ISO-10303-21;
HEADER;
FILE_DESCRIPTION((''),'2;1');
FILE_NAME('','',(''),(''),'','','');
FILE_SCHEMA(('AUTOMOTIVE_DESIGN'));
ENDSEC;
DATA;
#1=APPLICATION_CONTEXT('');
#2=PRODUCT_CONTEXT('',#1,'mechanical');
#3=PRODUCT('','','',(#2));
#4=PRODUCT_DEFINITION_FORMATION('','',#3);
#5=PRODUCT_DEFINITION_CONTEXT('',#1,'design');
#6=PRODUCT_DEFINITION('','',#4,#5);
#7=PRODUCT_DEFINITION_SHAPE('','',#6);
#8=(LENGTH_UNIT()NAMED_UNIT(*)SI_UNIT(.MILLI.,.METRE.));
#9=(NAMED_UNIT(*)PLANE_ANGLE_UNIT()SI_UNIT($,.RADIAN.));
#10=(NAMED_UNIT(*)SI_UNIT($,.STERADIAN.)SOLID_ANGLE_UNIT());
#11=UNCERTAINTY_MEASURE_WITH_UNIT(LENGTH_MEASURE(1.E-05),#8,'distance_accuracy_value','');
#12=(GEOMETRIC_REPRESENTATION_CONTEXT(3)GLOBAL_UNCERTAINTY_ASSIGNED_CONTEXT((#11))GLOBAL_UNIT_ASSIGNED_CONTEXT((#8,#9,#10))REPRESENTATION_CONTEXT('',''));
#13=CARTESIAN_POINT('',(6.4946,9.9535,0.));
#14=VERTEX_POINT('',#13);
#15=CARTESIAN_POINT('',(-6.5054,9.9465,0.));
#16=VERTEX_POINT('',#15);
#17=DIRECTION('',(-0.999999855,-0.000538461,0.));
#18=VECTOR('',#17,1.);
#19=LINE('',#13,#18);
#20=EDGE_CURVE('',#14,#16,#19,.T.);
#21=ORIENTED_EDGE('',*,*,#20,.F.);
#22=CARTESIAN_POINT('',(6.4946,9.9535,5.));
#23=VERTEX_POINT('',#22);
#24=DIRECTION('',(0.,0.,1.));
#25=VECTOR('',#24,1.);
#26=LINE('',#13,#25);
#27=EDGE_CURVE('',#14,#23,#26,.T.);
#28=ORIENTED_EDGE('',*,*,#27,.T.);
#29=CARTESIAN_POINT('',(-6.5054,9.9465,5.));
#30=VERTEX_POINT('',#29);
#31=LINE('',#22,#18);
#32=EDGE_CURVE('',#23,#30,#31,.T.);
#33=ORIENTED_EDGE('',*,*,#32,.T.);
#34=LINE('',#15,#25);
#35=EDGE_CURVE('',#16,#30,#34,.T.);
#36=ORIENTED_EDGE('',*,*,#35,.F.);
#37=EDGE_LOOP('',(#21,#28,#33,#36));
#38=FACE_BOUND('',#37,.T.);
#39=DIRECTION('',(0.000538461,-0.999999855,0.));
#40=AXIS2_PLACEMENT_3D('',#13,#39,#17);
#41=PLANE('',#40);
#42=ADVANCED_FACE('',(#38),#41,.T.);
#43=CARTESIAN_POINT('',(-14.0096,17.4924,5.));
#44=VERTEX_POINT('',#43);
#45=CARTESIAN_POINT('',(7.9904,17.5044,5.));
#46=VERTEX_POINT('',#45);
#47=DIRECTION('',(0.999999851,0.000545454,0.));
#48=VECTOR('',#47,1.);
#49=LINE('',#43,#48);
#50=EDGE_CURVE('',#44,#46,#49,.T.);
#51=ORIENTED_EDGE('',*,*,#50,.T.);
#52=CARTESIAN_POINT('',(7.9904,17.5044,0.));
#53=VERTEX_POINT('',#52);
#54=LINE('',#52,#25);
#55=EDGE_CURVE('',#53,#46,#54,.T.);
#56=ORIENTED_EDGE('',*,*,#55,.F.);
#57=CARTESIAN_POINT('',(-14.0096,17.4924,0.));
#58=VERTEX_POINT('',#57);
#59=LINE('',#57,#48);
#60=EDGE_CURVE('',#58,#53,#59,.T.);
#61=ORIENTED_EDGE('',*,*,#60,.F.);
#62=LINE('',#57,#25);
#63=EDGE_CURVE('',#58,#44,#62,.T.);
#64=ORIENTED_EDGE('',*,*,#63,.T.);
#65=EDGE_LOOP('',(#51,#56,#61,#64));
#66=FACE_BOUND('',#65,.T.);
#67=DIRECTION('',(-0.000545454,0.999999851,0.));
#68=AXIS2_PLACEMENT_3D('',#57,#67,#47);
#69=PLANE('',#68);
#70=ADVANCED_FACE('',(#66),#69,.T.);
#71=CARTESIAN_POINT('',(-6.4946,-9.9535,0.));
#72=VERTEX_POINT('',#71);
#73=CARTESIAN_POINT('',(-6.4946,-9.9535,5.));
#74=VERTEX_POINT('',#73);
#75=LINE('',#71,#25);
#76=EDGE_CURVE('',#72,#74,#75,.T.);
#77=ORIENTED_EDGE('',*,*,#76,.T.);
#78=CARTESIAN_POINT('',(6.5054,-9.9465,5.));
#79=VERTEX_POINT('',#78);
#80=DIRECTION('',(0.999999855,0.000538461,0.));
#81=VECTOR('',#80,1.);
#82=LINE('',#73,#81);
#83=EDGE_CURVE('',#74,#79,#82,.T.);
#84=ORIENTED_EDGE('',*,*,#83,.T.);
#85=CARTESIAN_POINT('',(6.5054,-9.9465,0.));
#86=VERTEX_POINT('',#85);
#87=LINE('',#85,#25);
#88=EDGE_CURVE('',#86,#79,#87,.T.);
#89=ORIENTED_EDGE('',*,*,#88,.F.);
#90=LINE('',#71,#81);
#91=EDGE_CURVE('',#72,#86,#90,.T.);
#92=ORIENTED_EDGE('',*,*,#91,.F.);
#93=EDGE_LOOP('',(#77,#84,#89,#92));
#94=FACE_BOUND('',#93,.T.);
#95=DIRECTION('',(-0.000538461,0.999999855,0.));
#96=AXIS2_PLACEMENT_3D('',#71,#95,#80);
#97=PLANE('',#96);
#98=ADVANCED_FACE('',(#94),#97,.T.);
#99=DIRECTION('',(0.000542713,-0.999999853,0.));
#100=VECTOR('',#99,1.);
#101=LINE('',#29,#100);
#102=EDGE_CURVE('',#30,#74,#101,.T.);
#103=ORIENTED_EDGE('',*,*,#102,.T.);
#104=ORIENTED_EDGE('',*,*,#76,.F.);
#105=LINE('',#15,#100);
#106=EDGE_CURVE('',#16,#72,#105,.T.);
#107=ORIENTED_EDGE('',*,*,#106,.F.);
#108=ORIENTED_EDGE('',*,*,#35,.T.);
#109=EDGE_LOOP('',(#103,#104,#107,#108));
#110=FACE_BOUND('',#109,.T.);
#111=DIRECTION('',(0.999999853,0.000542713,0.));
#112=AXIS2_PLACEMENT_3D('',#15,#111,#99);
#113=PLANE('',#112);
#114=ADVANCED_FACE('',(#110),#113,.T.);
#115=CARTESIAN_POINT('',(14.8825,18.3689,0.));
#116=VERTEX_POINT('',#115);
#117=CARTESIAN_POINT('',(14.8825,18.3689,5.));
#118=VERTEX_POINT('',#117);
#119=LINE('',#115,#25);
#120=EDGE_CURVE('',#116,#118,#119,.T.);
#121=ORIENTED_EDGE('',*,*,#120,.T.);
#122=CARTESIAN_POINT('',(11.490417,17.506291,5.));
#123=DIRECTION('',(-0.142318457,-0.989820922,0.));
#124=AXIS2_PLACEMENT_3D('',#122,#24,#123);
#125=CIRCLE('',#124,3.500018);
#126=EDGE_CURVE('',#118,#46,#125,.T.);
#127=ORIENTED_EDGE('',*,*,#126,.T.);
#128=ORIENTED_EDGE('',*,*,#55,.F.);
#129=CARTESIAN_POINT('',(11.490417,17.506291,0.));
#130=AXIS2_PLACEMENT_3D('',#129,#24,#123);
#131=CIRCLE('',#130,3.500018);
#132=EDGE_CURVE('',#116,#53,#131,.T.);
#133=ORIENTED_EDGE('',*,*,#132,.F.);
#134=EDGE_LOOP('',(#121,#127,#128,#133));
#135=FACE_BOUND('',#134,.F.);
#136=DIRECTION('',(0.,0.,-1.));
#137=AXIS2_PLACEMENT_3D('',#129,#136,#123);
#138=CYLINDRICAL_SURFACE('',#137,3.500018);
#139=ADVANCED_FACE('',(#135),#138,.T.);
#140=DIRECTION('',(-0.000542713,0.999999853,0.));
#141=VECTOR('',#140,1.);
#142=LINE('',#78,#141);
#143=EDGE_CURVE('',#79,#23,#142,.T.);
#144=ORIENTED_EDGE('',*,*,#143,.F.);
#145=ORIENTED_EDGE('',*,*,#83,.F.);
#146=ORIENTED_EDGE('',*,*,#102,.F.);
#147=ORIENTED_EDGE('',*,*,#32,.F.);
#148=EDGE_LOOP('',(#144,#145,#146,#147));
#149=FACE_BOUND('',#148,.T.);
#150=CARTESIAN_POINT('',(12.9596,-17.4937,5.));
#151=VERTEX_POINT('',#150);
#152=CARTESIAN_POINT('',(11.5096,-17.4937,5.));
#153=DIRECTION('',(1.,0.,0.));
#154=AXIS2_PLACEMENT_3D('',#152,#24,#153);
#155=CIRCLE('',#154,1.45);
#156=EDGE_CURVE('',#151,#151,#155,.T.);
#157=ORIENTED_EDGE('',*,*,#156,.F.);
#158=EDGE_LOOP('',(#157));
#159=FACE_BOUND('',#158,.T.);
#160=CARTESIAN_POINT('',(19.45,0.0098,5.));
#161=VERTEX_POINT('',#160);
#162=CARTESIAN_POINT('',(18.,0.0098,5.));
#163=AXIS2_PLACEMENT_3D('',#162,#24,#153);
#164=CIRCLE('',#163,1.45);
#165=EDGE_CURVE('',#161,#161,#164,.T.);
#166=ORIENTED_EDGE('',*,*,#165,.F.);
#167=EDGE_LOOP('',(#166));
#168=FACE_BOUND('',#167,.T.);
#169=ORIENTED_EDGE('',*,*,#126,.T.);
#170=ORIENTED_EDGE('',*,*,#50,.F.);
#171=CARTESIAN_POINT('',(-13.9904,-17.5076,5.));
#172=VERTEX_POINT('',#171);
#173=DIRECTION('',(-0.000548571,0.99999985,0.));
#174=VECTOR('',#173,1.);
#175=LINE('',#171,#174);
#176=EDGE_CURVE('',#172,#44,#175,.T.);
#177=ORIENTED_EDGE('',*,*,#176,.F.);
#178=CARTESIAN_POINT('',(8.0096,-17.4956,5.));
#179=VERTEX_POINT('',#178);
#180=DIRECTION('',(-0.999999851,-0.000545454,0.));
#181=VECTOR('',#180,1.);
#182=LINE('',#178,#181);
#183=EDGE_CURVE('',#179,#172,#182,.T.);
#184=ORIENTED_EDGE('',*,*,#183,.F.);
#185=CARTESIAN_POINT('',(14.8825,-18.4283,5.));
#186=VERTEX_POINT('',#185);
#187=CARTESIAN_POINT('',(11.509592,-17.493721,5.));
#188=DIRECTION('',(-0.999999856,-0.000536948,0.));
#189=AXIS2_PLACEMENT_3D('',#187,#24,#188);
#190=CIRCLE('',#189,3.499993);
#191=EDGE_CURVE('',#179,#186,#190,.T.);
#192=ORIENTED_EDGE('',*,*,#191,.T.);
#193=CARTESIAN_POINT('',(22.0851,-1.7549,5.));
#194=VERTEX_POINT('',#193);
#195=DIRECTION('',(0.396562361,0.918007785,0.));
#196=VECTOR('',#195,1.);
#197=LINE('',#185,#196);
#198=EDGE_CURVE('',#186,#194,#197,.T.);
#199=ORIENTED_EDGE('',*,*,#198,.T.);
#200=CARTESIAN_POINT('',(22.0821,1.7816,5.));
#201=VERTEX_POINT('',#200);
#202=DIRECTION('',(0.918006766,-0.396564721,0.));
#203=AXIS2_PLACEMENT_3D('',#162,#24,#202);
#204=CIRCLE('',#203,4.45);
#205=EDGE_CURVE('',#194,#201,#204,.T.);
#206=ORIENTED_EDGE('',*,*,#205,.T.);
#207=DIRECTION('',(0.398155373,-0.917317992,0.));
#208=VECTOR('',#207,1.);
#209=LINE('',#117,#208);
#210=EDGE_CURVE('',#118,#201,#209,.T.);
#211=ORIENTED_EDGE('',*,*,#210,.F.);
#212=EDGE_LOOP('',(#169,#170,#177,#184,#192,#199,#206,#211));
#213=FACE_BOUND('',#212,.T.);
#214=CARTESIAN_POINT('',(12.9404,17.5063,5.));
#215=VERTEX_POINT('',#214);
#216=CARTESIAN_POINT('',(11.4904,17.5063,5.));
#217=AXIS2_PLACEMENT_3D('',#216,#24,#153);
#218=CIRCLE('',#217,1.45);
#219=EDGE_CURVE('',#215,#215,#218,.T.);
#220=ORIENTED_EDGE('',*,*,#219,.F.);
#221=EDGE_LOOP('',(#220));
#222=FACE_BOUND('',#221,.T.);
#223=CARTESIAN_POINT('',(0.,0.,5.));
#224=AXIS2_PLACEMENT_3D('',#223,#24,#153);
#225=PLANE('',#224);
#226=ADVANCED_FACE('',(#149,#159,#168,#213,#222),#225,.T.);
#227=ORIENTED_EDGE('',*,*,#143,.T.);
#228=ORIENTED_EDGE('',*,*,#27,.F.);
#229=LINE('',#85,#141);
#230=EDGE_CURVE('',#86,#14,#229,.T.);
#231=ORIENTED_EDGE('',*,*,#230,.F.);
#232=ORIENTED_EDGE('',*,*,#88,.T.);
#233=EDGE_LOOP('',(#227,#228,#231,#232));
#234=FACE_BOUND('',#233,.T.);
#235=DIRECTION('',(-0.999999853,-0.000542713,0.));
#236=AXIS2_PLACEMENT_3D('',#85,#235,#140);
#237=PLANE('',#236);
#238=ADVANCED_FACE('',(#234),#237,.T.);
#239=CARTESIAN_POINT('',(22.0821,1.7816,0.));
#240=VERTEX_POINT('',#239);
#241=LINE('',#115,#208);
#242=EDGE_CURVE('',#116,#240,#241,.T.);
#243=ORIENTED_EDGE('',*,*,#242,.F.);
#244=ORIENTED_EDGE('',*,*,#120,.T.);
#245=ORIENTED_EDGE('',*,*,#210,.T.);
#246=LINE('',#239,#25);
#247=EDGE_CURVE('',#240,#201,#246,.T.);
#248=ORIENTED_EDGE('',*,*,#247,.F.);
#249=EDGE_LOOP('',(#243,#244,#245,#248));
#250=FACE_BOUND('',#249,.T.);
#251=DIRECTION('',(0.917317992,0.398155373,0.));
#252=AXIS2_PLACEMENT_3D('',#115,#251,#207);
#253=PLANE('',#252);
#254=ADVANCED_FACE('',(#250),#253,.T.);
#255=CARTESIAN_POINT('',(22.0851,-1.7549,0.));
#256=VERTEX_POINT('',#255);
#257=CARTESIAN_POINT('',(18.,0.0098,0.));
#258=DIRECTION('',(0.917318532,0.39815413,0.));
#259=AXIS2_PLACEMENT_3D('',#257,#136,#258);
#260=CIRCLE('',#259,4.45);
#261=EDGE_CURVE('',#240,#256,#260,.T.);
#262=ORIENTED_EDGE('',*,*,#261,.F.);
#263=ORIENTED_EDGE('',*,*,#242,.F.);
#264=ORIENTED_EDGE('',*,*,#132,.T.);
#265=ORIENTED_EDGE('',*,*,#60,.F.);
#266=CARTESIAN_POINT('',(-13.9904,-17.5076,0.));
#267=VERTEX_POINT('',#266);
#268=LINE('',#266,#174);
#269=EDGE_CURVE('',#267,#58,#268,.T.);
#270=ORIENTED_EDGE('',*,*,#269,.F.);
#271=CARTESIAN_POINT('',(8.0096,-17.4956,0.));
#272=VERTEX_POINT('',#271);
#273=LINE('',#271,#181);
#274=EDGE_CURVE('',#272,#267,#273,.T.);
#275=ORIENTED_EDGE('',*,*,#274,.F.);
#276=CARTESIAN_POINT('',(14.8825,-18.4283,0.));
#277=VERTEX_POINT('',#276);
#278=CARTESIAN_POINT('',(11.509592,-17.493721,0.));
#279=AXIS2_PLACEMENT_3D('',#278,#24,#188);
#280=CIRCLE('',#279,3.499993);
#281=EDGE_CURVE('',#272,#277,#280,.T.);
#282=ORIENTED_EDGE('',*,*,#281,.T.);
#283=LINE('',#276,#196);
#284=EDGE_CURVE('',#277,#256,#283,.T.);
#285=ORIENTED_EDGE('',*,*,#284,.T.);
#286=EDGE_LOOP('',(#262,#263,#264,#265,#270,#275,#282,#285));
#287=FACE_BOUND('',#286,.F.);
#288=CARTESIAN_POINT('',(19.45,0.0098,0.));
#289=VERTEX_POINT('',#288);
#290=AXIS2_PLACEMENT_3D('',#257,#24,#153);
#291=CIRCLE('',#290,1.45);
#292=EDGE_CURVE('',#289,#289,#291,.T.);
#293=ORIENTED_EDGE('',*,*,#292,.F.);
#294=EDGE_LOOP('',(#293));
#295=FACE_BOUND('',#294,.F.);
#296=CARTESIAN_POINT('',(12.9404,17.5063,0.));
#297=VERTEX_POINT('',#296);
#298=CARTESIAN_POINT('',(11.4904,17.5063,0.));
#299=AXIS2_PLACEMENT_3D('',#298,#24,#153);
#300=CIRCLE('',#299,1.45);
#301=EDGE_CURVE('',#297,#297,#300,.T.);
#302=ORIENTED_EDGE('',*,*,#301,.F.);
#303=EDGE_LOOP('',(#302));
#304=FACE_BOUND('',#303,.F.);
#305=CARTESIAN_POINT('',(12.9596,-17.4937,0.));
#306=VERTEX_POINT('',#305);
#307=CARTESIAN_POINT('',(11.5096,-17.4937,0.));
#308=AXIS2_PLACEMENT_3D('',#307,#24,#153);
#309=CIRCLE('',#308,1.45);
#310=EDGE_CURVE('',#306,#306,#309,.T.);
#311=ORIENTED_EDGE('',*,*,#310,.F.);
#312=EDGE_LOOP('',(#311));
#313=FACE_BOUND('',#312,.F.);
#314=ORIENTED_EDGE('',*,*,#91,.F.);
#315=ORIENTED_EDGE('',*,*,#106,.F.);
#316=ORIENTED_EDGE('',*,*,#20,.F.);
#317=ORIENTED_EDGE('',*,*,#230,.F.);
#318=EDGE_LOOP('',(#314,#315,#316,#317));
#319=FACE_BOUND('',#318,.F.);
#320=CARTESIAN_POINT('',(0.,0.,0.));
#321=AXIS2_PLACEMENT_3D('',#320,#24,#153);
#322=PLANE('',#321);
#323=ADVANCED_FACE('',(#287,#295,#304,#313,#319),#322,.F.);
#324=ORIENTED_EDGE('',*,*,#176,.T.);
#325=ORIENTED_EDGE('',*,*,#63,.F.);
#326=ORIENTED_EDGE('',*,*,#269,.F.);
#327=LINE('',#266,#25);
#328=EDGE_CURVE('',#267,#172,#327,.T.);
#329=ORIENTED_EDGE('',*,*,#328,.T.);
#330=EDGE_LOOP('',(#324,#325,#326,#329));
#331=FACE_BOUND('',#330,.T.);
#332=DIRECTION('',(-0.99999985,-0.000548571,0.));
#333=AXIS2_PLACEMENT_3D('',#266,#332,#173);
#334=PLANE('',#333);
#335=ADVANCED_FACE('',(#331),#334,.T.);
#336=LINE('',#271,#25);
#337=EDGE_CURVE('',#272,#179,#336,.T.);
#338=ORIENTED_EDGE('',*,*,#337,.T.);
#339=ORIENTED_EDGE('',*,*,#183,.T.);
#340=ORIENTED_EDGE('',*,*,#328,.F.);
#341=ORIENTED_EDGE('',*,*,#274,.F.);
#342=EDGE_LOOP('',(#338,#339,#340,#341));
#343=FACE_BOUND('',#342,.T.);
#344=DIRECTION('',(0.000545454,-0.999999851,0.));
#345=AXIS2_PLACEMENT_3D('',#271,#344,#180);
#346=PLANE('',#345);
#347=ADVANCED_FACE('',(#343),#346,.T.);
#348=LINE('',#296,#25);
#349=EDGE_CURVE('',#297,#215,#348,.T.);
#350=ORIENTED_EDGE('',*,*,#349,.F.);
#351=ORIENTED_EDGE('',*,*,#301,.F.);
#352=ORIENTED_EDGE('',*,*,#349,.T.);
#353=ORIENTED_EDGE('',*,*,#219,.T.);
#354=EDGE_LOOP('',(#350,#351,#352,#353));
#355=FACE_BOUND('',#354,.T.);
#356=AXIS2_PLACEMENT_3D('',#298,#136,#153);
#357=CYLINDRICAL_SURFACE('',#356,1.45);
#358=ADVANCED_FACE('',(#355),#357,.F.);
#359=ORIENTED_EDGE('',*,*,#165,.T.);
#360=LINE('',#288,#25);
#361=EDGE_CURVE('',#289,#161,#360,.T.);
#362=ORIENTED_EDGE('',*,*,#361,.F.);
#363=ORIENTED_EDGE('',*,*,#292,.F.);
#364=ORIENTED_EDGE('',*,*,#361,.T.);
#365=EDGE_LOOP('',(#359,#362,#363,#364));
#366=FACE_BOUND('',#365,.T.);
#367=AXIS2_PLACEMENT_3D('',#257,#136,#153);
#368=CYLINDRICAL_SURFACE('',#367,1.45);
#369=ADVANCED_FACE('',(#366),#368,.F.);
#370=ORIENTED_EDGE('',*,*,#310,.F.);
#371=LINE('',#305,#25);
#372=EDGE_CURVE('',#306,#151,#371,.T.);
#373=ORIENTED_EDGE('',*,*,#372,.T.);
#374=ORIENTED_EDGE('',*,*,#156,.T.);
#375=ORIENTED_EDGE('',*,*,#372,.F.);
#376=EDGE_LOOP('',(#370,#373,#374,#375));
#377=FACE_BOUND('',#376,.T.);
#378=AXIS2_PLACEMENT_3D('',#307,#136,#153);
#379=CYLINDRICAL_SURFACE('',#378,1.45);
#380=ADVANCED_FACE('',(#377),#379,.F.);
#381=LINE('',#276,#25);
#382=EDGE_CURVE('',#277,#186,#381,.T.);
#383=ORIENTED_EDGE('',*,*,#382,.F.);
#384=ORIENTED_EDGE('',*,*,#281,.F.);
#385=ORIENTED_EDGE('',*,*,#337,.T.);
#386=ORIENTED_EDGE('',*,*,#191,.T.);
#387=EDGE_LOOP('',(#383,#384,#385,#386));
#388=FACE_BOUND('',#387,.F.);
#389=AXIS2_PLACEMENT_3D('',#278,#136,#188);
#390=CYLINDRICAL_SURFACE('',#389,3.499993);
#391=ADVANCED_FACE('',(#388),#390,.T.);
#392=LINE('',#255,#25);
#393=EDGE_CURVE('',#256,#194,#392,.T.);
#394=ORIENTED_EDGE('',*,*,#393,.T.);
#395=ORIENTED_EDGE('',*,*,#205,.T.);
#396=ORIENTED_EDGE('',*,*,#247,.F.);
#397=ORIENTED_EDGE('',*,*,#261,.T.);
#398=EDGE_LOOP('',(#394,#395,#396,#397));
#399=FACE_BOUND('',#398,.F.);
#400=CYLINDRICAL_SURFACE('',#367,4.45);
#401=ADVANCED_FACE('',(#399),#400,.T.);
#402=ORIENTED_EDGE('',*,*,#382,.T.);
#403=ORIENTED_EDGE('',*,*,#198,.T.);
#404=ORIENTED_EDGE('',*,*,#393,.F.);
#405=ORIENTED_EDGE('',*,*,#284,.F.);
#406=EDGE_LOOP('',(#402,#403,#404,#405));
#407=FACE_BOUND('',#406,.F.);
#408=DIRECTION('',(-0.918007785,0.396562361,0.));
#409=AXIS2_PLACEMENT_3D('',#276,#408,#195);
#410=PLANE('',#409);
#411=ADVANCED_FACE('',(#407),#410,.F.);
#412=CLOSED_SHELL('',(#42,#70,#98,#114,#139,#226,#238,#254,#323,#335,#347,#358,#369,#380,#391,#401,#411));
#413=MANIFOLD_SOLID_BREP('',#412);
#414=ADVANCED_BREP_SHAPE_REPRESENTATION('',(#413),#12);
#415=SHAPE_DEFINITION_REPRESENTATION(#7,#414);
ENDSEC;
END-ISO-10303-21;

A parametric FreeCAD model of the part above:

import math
import FreeCAD as App
import Part
import Sketcher
Q = App.Units.Quantity


def add_polygon(sketch, points):
    """Adds a closed chain of lines whose ends are joined by coincident constraints."""
    first, n = sketch.GeometryCount, len(points)
    for a, b in zip(points, points[1:] + points[:1]):
        sketch.addGeometry(Part.LineSegment(App.Vector(*a, 0), App.Vector(*b, 0)), False)
    for i in range(n):
        sketch.addConstraint(Sketcher.Constraint("Coincident", first + i, 2, first + (i + 1) % n, 1))

doc = App.newDocument("Part")
body = doc.addObject("PartDesign::Body", "Body")

# Sketch on XY plane
sketch1 = body.newObject("Sketcher::SketchObject", "Sketch")
sketch1.AttachmentSupport = (doc.getObject("XY_Plane"), [""])
sketch1.MapMode = "FlatFace"
sketch1.addGeometry(Part.ArcOfCircle(Part.Circle(App.Vector(11.4904, 17.5063, 0), App.Vector(0, 0, 1), 3.500024), math.radians(14.267712), math.radians(180.031103)), False)  # 0
sketch1.addGeometry(Part.LineSegment(App.Vector(7.9904, 17.5044, 0), App.Vector(-14.0096, 17.4924, 0)), False)  # 1
sketch1.addGeometry(Part.LineSegment(App.Vector(-14.0096, 17.4924, 0), App.Vector(-13.9904, -17.5076, 0)), False)  # 2
sketch1.addGeometry(Part.LineSegment(App.Vector(-13.9904, -17.5076, 0), App.Vector(8.0096, -17.4956, 0)), False)  # 3
sketch1.addGeometry(Part.ArcOfCircle(Part.Circle(App.Vector(11.5096, -17.4937, 0), App.Vector(0, 0, 1), 3.500001), math.radians(-179.968897), math.radians(-15.48757)), False)  # 4
sketch1.addGeometry(Part.LineSegment(App.Vector(14.8825, -18.4283, 0), App.Vector(22.0851, -1.7549, 0)), False)  # 5
sketch1.addGeometry(Part.ArcOfCircle(Part.Circle(App.Vector(18, 0.0098, 0), App.Vector(0, 0, 1), 4.45), math.radians(-23.363597), math.radians(23.462835)), False)  # 6
sketch1.addGeometry(Part.LineSegment(App.Vector(22.0821, 1.7816, 0), App.Vector(14.8825, 18.3689, 0)), False)  # 7
sketch1.addGeometry(Part.Circle(App.Vector(11.5096, -17.4937, 0), App.Vector(0, 0, 1), 1.45), False)  # 8
sketch1.addGeometry(Part.Circle(App.Vector(11.4904, 17.5063, 0), App.Vector(0, 0, 1), 1.45), False)  # 9
add_polygon(sketch1, [(-6.5054, 9.9465), (6.4946, 9.9535), (6.5054, -9.9465), (-6.4946, -9.9535)])  # lines 10-13
sketch1.addGeometry(Part.Circle(App.Vector(18, 0.0098, 0), App.Vector(0, 0, 1), 1.45), False)  # 14
sketch1.addConstraint(Sketcher.Constraint("Coincident", 0, 2, 1, 1))
sketch1.addConstraint(Sketcher.Constraint("Coincident", 1, 2, 2, 1))
sketch1.addConstraint(Sketcher.Constraint("Coincident", 2, 2, 3, 1))
sketch1.addConstraint(Sketcher.Constraint("Coincident", 3, 2, 4, 1))
sketch1.addConstraint(Sketcher.Constraint("Coincident", 4, 2, 5, 1))
sketch1.addConstraint(Sketcher.Constraint("Coincident", 5, 2, 6, 1))
sketch1.addConstraint(Sketcher.Constraint("Coincident", 6, 2, 7, 1))
sketch1.addConstraint(Sketcher.Constraint("Coincident", 7, 2, 0, 1))
sketch1.addConstraint(Sketcher.Constraint("Coincident", 8, 3, 4, 3))
sketch1.addConstraint(Sketcher.Constraint("Coincident", 9, 3, 0, 3))
sketch1.addConstraint(Sketcher.Constraint("Coincident", 14, 3, 6, 3))
sketch1.addConstraint(Sketcher.Constraint("Diameter", 8, Q("2.9 mm")))
sketch1.addConstraint(Sketcher.Constraint("Diameter", 9, Q("2.9 mm")))
sketch1.addConstraint(Sketcher.Constraint("Diameter", 14, Q("2.9 mm")))
sketch1.addConstraint(Sketcher.Constraint("Radius", 0, Q("3.5 mm")))
sketch1.addConstraint(Sketcher.Constraint("Radius", 4, Q("3.5 mm")))
sketch1.addConstraint(Sketcher.Constraint("Radius", 6, Q("4.45 mm")))
sketch1.addConstraint(Sketcher.Constraint("Distance", 1, Q("22 mm")))
sketch1.addConstraint(Sketcher.Constraint("Distance", 2, Q("35 mm")))
sketch1.addConstraint(Sketcher.Constraint("Distance", 3, Q("22 mm")))
sketch1.addConstraint(Sketcher.Constraint("Distance", 10, Q("13 mm")))
sketch1.addConstraint(Sketcher.Constraint("Distance", 12, Q("13 mm")))
sketch1.addConstraint(Sketcher.Constraint("DistanceX", -1, 1, 6, 3, Q("18 mm")))
sketch1.addConstraint(Sketcher.Constraint("DistanceY", 4, 3, 0, 3, Q("35 mm")))
sketch1.addConstraint(Sketcher.Constraint("Distance", 11, Q("19.9 mm")))
sketch1.addConstraint(Sketcher.Constraint("Distance", 13, Q("19.9 mm")))
sketch1.addConstraint(Sketcher.Constraint("DistanceX", -1, 1, 5, 2, Q("22.085 mm")))
sketch1.addConstraint(Sketcher.Constraint("DistanceY", 5, 2, -1, 1, Q("1.755 mm")))
sketch1.addConstraint(Sketcher.Constraint("DistanceX", -1, 1, 6, 2, Q("22.082 mm")))
sketch1.addConstraint(Sketcher.Constraint("DistanceY", -1, 1, 7, 2, Q("18.369 mm")))
sketch1.addConstraint(Sketcher.Constraint("DistanceY", 0, 2, 0, 3, Q("0.002 mm")))
sketch1.addConstraint(Sketcher.Constraint("DistanceY", 1, 2, 0, 2, Q("0.012 mm")))
sketch1.addConstraint(Sketcher.Constraint("DistanceY", 3, 2, 4, 3, Q("0.002 mm")))
sketch1.addConstraint(Sketcher.Constraint("DistanceX", 4, 3, 4, 2, Q("3.373 mm")))
sketch1.addConstraint(Sketcher.Constraint("DistanceY", 4, 2, 6, 3, Q("18.438 mm")))
sketch1.addConstraint(Sketcher.Constraint("DistanceY", 10, 2, 0, 2, Q("7.551 mm")))
sketch1.addConstraint(Sketcher.Constraint("DistanceX", 10, 2, 7, 2, Q("8.388 mm")))
sketch1.addConstraint(Sketcher.Constraint("DistanceX", 11, 2, 4, 2, Q("8.377 mm")))
sketch1.addConstraint(Sketcher.Constraint("DistanceY", 2, 2, 12, 2, Q("7.554 mm")))
sketch1.addConstraint(Sketcher.Constraint("Distance", 5, Q("18.1626 mm")))
sketch1.addConstraint(Sketcher.Constraint("Distance", 7, Q("18.0824 mm")))
pad1 = body.newObject("PartDesign::Pad", "Pad")
pad1.Profile = sketch1
pad1.Length = 5

doc.recompute()
